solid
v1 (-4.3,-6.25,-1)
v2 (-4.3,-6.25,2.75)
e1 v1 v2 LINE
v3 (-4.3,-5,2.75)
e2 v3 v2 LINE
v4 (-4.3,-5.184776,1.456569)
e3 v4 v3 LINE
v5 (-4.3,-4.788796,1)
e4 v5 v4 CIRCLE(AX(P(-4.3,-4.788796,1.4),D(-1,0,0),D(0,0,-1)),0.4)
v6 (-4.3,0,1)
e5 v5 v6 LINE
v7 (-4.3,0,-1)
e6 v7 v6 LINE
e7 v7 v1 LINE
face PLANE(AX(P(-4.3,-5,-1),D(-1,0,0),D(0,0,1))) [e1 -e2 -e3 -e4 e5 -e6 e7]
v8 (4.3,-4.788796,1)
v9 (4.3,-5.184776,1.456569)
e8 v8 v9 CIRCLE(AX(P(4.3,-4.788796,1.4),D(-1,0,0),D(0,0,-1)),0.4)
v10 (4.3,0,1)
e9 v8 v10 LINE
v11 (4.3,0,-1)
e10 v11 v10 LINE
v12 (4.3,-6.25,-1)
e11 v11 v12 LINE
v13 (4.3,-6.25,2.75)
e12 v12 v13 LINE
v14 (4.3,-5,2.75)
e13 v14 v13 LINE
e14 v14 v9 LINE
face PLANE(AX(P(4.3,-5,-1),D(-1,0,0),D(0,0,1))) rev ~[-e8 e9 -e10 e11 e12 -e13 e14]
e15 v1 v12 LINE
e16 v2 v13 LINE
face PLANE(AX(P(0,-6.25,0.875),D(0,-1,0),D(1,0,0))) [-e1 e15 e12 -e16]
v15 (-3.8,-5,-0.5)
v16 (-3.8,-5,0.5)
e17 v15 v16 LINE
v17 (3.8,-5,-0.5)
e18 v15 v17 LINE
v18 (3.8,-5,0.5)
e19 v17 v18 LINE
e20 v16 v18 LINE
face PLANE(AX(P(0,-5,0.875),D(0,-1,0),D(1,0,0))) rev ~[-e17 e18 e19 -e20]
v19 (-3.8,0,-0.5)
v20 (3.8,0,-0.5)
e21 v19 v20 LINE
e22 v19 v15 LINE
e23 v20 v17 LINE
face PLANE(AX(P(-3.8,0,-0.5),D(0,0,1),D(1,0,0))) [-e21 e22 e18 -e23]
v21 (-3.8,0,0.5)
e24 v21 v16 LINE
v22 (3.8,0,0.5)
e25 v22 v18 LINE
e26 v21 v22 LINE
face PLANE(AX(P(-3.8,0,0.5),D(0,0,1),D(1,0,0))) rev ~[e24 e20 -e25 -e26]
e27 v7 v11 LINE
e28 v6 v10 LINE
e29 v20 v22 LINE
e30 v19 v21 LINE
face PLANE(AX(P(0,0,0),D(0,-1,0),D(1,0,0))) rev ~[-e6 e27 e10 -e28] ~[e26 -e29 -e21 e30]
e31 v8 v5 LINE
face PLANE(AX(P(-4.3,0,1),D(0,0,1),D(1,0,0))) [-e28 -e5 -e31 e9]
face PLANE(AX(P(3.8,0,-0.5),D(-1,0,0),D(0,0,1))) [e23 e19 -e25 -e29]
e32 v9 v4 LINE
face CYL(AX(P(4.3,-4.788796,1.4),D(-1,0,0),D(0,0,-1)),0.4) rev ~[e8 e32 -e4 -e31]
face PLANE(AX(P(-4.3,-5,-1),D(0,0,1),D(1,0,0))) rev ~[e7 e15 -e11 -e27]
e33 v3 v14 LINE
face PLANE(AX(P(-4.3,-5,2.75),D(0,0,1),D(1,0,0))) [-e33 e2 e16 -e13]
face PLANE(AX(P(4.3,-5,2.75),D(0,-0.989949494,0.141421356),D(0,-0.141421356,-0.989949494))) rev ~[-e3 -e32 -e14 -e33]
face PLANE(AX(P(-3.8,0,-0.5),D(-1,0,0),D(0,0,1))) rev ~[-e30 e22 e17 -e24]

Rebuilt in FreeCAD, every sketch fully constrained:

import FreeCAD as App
import Part
import Sketcher


def edges_at(feature, points):
    """Names of the edges that pass closest to the given points."""
    edges = feature.Shape.Edges
    near = lambda p: min(range(len(edges)), key=lambda i: edges[i].distToShape(Part.Vertex(*p))[0])
    return sorted({f"Edge{near(p) + 1}" for p in points})


def add_polygon(sketch, points):
    """Adds a closed chain of lines whose ends are joined by coincident constraints."""
    first, n = sketch.GeometryCount, len(points)
    for a, b in zip(points, points[1:] + points[:1]):
        sketch.addGeometry(Part.LineSegment(App.Vector(*a, 0), App.Vector(*b, 0)), False)
    for i in range(n):
        sketch.addConstraint(Sketcher.Constraint("Coincident", first + i, 2, first + (i + 1) % n, 1))

doc = App.newDocument("Part")
body = doc.addObject("PartDesign::Body", "Body")

# Sketch on XZ plane
sketch1 = body.newObject("Sketcher::SketchObject", "Sketch")
sketch1.AttachmentSupport = (doc.getObject("XZ_Plane"), [""])
sketch1.MapMode = "FlatFace"
add_polygon(sketch1, [(-4.3, 1), (-4.3, -1), (4.3, -1), (4.3, 1)])  # lines 0-3
add_polygon(sketch1, [(3.8, -0.5), (-3.8, -0.5), (-3.8, 0.5), (3.8, 0.5)])  # lines 4-7
sketch1.addConstraint(Sketcher.Constraint("Vertical", 0))
sketch1.addConstraint(Sketcher.Constraint("Horizontal", 1))
sketch1.addConstraint(Sketcher.Constraint("Vertical", 2))
sketch1.addConstraint(Sketcher.Constraint("Horizontal", 3))
sketch1.addConstraint(Sketcher.Constraint("Horizontal", 4))
sketch1.addConstraint(Sketcher.Constraint("Vertical", 5))
sketch1.addConstraint(Sketcher.Constraint("Horizontal", 6))
sketch1.addConstraint(Sketcher.Constraint("Vertical", 7))
sketch1.addConstraint(Sketcher.Constraint("Symmetric", 0, 2, 2, 2, -1, 1))
sketch1.addConstraint(Sketcher.Constraint("Symmetric", 4, 2, 6, 2, -1, 1))
sketch1.addConstraint(Sketcher.Constraint("DistanceY", 0, 2, 0, 1, 2.0))
sketch1.addConstraint(Sketcher.Constraint("DistanceY", 5, 1, 5, 2, 1.0))
sketch1.addConstraint(Sketcher.Constraint("DistanceX", 1, 1, 1, 2, 8.6))
sketch1.addConstraint(Sketcher.Constraint("DistanceX", 4, 2, 4, 1, 7.6))
pad1 = body.newObject("PartDesign::Pad", "Pad")
pad1.Profile = sketch1
pad1.Length = 5

# Sketch on XZ plane
sketch2 = body.newObject("Sketcher::SketchObject", "Sketch001")
sketch2.AttachmentSupport = (doc.getObject("XZ_Plane"), [""])
sketch2.MapMode = "FlatFace"
sketch2.AttachmentOffset = App.Placement(App.Vector(0, 0, 5), App.Rotation())
add_polygon(sketch2, [(-4.3, 2.8), (-4.3, -1), (4.3, -1), (4.3, 2.8)])  # lines 0-3
sketch2.addConstraint(Sketcher.Constraint("Vertical", 0))
sketch2.addConstraint(Sketcher.Constraint("Horizontal", 1))
sketch2.addConstraint(Sketcher.Constraint("Vertical", 2))
sketch2.addConstraint(Sketcher.Constraint("Horizontal", 3))
sketch2.addConstraint(Sketcher.Constraint("DistanceX", 1, 1, 1, 2, 8.6))
sketch2.addConstraint(Sketcher.Constraint("DistanceY", 0, 2, -1, 1, 1.0))
sketch2.addConstraint(Sketcher.Constraint("DistanceY", 0, 2, 0, 1, 3.75))
sketch2.addConstraint(Sketcher.Constraint("DistanceX", 0, 2, -1, 1, 4.3))
pad2 = body.newObject("PartDesign::Pad", "Pad001")
pad2.Profile = sketch2
pad2.Length = 1.25

# Sketch on YZ plane
sketch3 = body.newObject("Sketcher::SketchObject", "Sketch002")
sketch3.AttachmentSupport = (doc.getObject("YZ_Plane"), [""])
sketch3.MapMode = "FlatFace"
sketch3.AttachmentOffset = App.Placement(App.Vector(0, 0, 4.3), App.Rotation())
add_polygon(sketch3, [(-5, 1), (-5, 2.75), (-5.25, 1)])  # lines 0-2
sketch3.addConstraint(Sketcher.Constraint("Vertical", 0))
sketch3.addConstraint(Sketcher.Constraint("Horizontal", 2))
sketch3.addConstraint(Sketcher.Constraint("DistanceX", 0, 2, -1, 1, 5.0))
sketch3.addConstraint(Sketcher.Constraint("DistanceY", -1, 1, 1, 2, 1.0))
sketch3.addConstraint(Sketcher.Constraint("DistanceX", 2, 1, 2, 2, 0.25))
sketch3.addConstraint(Sketcher.Constraint("DistanceY", 0, 1, 0, 2, 1.75))
pocket1 = body.newObject("PartDesign::Pocket", "Pocket")
pocket1.Profile = sketch3
pocket1.Type = "ThroughAll"
doc.recompute()

fillet = body.newObject("PartDesign::Fillet", "Fillet")
fillet.Base = (pocket1, edges_at(pocket1, [(0, -5.25, 1)]))
fillet.Radius = 0.4

doc.recompute()
